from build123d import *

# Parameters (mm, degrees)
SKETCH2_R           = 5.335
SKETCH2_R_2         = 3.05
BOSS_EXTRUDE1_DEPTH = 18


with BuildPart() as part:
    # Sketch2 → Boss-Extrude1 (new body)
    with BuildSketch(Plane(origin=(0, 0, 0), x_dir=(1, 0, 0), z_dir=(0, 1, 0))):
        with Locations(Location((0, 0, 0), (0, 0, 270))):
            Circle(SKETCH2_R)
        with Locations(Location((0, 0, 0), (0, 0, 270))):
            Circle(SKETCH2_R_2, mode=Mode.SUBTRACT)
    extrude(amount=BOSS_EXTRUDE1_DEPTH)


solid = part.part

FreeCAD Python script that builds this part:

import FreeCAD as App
import Part
import Sketcher
from FreeCAD import Vector
Q = App.Units.Quantity

doc = App.newDocument("Part")
body = doc.addObject("PartDesign::Body", "Body")

sketch1 = doc.addObject("Sketcher::SketchObject", "Sketch")
body.addObject(sketch1)
sketch1.AttachmentSupport = (doc.XZ_Plane, [""])
sketch1.MapMode = "FlatFace"
sketch1.addGeometry(Part.Circle(Vector(0, 0, 0), Vector(0, 0, 1), 5.3), False)
sketch1.addGeometry(Part.Circle(Vector(0, 0, 0), Vector(0, 0, 1), 3), False)
sketch1.addConstraint(Sketcher.Constraint("Coincident", 0, 3, -1, 1))
sketch1.addConstraint(Sketcher.Constraint("Coincident", 1, 3, -1, 1))
sketch1.addConstraint(Sketcher.Constraint("Diameter", 1, Q("6.1 mm")))
sketch1.addConstraint(Sketcher.Constraint("Diameter", 0, Q("10.67 mm")))
pad1 = doc.addObject("PartDesign::Pad", "Pad")
body.addObject(pad1)
pad1.Profile = sketch1
pad1.Length = 18
pad1.Reversed = True

doc.recompute()
